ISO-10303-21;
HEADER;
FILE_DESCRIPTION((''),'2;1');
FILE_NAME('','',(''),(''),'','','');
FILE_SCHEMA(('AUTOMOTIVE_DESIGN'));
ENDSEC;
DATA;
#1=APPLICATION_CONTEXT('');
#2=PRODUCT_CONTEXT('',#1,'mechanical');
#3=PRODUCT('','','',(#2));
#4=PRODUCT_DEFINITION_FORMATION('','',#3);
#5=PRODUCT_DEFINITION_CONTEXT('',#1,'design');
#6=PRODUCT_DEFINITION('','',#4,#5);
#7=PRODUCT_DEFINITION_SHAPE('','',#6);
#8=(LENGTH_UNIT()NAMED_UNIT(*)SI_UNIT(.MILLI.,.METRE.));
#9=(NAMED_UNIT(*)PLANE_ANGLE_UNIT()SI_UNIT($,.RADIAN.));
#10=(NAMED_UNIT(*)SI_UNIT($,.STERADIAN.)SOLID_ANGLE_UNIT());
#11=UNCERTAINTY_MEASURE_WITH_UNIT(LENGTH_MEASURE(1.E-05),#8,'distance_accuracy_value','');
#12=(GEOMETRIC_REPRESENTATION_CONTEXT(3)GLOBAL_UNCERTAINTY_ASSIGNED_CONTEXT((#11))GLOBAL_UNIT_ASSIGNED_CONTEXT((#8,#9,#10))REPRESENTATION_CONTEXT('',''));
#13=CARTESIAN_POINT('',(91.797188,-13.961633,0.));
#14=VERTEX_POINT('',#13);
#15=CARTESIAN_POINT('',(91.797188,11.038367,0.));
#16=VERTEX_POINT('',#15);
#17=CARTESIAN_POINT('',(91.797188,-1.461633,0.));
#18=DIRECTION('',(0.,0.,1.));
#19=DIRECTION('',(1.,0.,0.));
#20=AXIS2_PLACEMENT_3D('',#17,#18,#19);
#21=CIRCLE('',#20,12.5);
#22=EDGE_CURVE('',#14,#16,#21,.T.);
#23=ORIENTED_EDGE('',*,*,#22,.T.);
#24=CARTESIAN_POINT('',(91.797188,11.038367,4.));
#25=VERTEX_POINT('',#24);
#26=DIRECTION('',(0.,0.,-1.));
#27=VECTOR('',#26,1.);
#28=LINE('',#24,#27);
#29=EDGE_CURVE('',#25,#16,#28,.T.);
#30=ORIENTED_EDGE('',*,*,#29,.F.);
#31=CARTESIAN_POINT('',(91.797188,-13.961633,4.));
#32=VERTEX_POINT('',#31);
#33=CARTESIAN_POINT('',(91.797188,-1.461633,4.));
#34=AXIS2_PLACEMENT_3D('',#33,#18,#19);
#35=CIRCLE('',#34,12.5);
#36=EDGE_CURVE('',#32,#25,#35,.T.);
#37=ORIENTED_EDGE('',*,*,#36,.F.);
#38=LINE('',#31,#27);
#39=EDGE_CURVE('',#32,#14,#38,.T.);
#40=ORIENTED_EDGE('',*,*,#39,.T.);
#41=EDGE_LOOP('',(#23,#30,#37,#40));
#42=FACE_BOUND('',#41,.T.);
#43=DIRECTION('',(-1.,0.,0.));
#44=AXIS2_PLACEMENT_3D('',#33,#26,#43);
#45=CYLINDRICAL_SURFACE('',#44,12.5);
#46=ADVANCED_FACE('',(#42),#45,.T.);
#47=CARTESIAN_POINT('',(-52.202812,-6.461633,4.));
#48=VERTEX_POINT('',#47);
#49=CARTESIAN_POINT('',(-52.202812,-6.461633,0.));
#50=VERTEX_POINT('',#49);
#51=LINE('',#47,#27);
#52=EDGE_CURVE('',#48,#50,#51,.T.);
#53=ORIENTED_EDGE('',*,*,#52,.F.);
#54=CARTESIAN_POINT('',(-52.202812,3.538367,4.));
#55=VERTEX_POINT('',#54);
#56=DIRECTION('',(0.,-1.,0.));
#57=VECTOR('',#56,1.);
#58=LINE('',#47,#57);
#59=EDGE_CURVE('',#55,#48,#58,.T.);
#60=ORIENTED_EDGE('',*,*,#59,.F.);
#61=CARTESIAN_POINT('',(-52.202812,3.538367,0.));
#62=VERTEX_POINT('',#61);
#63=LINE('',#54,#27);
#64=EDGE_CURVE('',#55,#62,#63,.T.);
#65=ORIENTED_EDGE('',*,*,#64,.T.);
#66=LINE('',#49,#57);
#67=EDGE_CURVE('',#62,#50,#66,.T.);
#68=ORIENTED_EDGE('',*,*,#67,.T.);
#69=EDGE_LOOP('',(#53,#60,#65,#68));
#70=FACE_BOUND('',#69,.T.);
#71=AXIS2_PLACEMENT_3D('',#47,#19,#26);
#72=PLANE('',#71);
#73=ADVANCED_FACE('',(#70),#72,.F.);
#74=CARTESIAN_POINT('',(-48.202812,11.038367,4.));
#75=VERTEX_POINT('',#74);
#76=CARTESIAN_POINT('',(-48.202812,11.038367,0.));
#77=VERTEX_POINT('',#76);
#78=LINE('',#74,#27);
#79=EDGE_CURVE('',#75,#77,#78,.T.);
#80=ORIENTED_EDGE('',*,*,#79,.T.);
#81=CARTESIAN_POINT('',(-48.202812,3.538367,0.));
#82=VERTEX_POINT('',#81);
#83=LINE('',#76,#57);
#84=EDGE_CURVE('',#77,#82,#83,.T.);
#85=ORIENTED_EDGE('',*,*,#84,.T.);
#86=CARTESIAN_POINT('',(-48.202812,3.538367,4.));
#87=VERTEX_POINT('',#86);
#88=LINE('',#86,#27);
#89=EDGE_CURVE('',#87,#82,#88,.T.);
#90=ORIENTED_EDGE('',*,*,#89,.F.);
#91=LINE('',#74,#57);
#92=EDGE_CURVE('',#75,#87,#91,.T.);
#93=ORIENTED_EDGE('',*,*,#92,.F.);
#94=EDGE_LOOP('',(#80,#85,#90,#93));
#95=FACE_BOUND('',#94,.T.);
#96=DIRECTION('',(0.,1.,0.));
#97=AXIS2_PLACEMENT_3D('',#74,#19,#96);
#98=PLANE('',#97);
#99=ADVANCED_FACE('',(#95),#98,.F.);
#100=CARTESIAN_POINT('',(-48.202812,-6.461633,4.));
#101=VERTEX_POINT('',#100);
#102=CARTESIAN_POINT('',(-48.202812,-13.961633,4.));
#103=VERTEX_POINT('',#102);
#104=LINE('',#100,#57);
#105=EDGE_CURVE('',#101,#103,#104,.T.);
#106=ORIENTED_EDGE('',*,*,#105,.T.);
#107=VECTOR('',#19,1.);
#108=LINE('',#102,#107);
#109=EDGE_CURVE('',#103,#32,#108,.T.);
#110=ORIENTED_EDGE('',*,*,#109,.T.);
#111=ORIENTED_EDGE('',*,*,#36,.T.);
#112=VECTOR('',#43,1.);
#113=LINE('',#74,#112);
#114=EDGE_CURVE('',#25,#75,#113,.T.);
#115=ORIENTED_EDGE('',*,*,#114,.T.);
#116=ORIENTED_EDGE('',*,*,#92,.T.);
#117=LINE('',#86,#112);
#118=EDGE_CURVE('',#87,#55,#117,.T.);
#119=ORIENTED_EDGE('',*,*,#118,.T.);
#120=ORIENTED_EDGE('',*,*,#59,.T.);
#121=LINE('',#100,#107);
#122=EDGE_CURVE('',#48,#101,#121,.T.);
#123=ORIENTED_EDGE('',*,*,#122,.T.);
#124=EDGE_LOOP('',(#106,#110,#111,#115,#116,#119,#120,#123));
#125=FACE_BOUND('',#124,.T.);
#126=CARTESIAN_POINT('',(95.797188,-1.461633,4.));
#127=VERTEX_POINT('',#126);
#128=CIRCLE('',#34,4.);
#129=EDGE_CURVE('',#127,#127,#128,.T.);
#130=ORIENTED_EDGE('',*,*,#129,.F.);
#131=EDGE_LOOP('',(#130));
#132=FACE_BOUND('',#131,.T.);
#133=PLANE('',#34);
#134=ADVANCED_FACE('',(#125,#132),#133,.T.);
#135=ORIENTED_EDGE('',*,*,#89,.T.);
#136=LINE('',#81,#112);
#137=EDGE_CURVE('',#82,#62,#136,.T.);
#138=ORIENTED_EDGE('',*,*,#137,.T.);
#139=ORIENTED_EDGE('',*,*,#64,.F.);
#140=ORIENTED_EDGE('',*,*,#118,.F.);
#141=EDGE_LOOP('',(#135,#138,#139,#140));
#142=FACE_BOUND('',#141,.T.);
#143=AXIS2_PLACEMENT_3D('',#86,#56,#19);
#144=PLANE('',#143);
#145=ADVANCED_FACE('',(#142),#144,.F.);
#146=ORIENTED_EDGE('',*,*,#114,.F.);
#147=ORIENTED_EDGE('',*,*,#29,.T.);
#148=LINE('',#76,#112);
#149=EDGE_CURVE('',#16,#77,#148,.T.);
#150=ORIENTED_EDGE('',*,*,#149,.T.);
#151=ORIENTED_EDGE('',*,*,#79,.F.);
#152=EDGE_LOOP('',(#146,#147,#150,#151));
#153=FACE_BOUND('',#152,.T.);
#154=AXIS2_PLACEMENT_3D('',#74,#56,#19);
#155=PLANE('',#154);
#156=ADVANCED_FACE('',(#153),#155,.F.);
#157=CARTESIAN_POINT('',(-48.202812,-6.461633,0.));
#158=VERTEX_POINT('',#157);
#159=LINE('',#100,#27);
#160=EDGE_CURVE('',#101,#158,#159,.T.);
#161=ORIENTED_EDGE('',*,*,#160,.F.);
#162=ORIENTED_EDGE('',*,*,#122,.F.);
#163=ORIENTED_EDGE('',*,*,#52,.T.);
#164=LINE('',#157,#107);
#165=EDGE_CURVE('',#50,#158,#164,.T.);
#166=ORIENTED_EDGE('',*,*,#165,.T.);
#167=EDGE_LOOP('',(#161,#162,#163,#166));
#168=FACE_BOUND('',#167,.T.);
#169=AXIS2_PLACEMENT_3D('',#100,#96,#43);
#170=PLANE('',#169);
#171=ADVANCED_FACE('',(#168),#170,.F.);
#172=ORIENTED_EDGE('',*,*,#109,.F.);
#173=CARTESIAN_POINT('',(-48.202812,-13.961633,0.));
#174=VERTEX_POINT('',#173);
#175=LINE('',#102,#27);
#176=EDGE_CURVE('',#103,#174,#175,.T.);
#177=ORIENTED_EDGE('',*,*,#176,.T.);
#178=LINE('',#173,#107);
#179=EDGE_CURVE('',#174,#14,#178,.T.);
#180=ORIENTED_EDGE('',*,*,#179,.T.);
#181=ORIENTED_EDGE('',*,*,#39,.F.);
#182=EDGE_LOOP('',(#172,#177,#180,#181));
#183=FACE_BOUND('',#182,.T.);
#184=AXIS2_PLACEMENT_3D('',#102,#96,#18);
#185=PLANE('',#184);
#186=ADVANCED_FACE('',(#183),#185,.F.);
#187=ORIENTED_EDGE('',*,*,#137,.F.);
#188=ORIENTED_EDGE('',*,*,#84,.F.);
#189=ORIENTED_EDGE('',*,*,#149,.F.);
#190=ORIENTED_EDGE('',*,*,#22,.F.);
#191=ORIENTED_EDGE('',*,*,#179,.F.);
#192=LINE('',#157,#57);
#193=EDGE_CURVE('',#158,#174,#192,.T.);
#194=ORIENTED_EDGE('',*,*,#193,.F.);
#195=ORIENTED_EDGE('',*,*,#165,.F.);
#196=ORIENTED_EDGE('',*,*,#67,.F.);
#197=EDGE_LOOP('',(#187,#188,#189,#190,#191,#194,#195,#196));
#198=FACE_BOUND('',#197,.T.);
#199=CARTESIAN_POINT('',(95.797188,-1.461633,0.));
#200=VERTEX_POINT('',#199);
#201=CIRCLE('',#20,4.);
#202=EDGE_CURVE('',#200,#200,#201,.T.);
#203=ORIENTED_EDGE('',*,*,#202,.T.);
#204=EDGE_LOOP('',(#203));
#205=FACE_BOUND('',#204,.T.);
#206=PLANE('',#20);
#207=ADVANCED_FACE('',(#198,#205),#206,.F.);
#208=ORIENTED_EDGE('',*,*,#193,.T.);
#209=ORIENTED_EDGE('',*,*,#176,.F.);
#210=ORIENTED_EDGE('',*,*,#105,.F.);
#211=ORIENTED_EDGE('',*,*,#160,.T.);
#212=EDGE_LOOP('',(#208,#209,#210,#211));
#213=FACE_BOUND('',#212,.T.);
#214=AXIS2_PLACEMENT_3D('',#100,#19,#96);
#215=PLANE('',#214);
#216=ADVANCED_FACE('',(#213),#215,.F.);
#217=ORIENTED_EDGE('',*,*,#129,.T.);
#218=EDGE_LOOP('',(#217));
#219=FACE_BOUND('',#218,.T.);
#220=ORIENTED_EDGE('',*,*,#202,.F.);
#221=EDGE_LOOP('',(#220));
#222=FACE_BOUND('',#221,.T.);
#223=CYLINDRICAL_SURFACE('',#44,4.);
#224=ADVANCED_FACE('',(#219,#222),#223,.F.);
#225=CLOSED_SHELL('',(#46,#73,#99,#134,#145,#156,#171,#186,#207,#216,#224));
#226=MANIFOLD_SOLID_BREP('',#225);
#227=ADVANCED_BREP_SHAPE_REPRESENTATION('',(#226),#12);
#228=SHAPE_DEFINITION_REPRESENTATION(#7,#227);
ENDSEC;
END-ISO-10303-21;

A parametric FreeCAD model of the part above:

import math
import FreeCAD as App
import Part
import Sketcher

V = App.Vector
Q = App.Units.Quantity

doc = App.newDocument("Part")
body = doc.addObject("PartDesign::Body", "Body")

sketch1 = body.newObject("Sketcher::SketchObject", "Sketch")
sketch1.AttachmentSupport = (doc.getObject("XY_Plane"), [""])
sketch1.MapMode = "FlatFace"
sketch1.addGeometry([
    Part.LineSegment(V(-48.2, -6.5, 0), V(-48.2, -14, 0)),
    Part.LineSegment(V(-48.2, -14, 0), V(91.8, -14, 0)),
    Part.ArcOfCircle(Part.Circle(V(91.8, -1.5, 0), V(0, 0, 1), 12.5), math.radians(-90), math.radians(90)),
    Part.LineSegment(V(91.8, 11, 0), V(-48.2, 11, 0)),
    Part.LineSegment(V(-48.2, 11, 0), V(-48.2, 3.5, 0)),
    Part.LineSegment(V(-48.2, 3.5, 0), V(-52.2, 3.5, 0)),
    Part.LineSegment(V(-52.2, 3.5, 0), V(-52.2, -6.5, 0)),
    Part.LineSegment(V(-52.2, -6.5, 0), V(-48.2, -6.5, 0)),
    Part.Circle(V(91.8, -1.5, 0), V(0, 0, 1), 4),
], False)
sketch1.addConstraint([
    Sketcher.Constraint("Coincident", 0, 2, 1, 1),
    Sketcher.Constraint("Tangent", 1, 2, 2, 1),
    Sketcher.Constraint("Tangent", 2, 2, 3, 1),
    Sketcher.Constraint("Coincident", 3, 2, 4, 1),
    Sketcher.Constraint("Coincident", 4, 2, 5, 1),
    Sketcher.Constraint("Coincident", 5, 2, 6, 1),
    Sketcher.Constraint("Coincident", 6, 2, 7, 1),
    Sketcher.Constraint("Coincident", 7, 2, 0, 1),
    Sketcher.Constraint("Vertical", 0),
    Sketcher.Constraint("Horizontal", 1),
    Sketcher.Constraint("Horizontal", 3),
    Sketcher.Constraint("Vertical", 4),
    Sketcher.Constraint("Horizontal", 5),
    Sketcher.Constraint("Vertical", 6),
    Sketcher.Constraint("Horizontal", 7),
    Sketcher.Constraint("Coincident", 8, 3, 2, 3),
    Sketcher.Constraint("Vertical", 0, 2, 3, 2),
    Sketcher.Constraint("Equal", 0, 4),
    Sketcher.Constraint("Diameter", 8, Q("8 mm")),
    Sketcher.Constraint("Radius", 2, Q("12.5 mm")),
    Sketcher.Constraint("DistanceX", 1, 1, 1, 2, Q("140 mm")),
    Sketcher.Constraint("DistanceX", 5, 2, 5, 1, Q("4 mm")),
    Sketcher.Constraint("DistanceY", 6, 2, 6, 1, Q("10 mm")),
    Sketcher.Constraint("DistanceX", -1, 1, 2, 3, Q("91.797188 mm")),
    Sketcher.Constraint("DistanceY", 2, 3, -1, 1, Q("1.461633 mm")),
])
pad1 = body.newObject("PartDesign::Pad", "Pad")
pad1.Profile = sketch1
pad1.Length = 4

doc.recompute()
